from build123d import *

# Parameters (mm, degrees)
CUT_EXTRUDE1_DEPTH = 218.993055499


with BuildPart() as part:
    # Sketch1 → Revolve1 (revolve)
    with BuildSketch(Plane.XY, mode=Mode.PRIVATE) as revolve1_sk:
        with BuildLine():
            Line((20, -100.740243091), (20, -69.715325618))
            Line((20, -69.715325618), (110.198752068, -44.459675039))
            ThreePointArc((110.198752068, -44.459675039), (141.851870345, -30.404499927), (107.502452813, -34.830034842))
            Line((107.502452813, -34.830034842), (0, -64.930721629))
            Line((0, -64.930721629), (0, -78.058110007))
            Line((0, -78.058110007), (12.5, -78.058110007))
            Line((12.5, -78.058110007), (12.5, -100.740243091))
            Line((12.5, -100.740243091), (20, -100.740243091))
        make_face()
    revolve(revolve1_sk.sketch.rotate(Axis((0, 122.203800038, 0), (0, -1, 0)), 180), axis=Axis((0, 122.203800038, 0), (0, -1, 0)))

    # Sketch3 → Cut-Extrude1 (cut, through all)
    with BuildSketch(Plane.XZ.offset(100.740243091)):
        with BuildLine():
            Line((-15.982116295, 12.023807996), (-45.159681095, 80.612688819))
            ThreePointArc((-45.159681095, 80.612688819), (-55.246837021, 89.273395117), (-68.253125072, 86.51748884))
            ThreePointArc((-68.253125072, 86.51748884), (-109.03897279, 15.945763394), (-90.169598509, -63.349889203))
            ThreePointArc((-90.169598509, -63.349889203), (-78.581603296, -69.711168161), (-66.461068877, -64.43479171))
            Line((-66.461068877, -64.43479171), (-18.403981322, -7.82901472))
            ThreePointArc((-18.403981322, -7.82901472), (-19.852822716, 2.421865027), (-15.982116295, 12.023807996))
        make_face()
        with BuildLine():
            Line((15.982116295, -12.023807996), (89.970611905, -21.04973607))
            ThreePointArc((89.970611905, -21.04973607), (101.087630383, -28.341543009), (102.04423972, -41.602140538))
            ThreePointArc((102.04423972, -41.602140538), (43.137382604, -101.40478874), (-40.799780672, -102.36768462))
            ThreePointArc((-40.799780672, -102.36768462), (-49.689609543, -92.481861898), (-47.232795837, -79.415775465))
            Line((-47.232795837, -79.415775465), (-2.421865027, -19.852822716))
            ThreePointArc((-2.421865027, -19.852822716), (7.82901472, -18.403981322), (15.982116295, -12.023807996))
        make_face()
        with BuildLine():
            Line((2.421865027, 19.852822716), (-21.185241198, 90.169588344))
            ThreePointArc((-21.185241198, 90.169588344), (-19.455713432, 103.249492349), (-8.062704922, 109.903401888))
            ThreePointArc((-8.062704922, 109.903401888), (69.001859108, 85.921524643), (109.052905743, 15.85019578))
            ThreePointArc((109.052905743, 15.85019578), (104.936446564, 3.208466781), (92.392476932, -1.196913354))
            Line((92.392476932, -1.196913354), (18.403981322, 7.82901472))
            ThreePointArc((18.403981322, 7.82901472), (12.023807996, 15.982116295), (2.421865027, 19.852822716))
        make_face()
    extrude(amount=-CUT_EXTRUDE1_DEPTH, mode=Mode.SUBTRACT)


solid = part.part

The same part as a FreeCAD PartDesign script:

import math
import FreeCAD as App
import Part
import Sketcher
from FreeCAD import Vector

doc = App.newDocument("Part")
body = doc.addObject("PartDesign::Body", "Body")

sketch1 = body.newObject("Sketcher::SketchObject", "Sketch")
sketch1.AttachmentSupport = (doc.getObject("XY_Plane"), [""])
sketch1.MapMode = "FlatFace"
sketch1.addGeometry([
    Part.LineSegment(Vector(20, -100.740243, 0), Vector(20, -69.715326, 0)),
    Part.LineSegment(Vector(20, -69.715326, 0), Vector(110.198752, -44.459675, 0)),
    Part.ArcOfCircle(Part.Circle(Vector(125, -35.123024, 0), Vector(0, 0, 1), 17.5), math.radians(-147.756204), math.radians(179.040697)),
    Part.LineSegment(Vector(107.502453, -34.830035, 0), Vector(0, -64.930722, 0)),
    Part.LineSegment(Vector(0, -64.930722, 0), Vector(0, -78.05811, 0)),
    Part.LineSegment(Vector(0, -78.05811, 0), Vector(12.5, -78.05811, 0)),
    Part.LineSegment(Vector(12.5, -78.05811, 0), Vector(12.5, -100.740243, 0)),
    Part.LineSegment(Vector(12.5, -100.740243, 0), Vector(20, -100.740243, 0)),
], False)
sketch1.addConstraint([
    Sketcher.Constraint("Coincident", 0, 2, 1, 1),
    Sketcher.Constraint("Coincident", 1, 2, 2, 1),
    Sketcher.Constraint("Coincident", 2, 2, 3, 1),
    Sketcher.Constraint("Coincident", 3, 2, 4, 1),
    Sketcher.Constraint("Coincident", 4, 2, 5, 1),
    Sketcher.Constraint("Coincident", 5, 2, 6, 1),
    Sketcher.Constraint("Coincident", 6, 2, 7, 1),
    Sketcher.Constraint("Coincident", 7, 2, 0, 1),
    Sketcher.Constraint("Vertical", 0),
    Sketcher.Constraint("Vertical", 4),
    Sketcher.Constraint("Horizontal", 5),
    Sketcher.Constraint("Vertical", 6),
    Sketcher.Constraint("Horizontal", 7),
    Sketcher.Constraint("PointOnObject", 3, 2, -2),
    Sketcher.Constraint("Parallel", 1, 3),
    Sketcher.Constraint("Radius", 2, 17.5),
    Sketcher.Constraint("DistanceX", 5, 1, 5, 2, 12.5),
    Sketcher.Constraint("DistanceX", 7, 1, 7, 2, 7.5),
    Sketcher.Constraint("DistanceX", -1, 1, 2, 3, 125.0),
    Sketcher.Constraint("DistanceY", 4, 2, 4, 1, 13.127388),
    Sketcher.Constraint("DistanceY", 0, 2, 2, 3, 34.592302),
    Sketcher.Constraint("DistanceX", 2, 2, 1, 2, 2.696299),
    Sketcher.Constraint("DistanceY", 3, 2, 2, 3, 29.807698),
    Sketcher.Constraint("DistanceY", 0, 1, 0, 2, 31.024917),
    Sketcher.Constraint("DistanceY", 3, 2, -1, 1, 64.930722),
])
revolution = body.newObject("PartDesign::Revolution", "Revolution")
revolution.Profile = sketch1
revolution.ReferenceAxis = (sketch1, ["V_Axis"])
revolution.Angle = 360

sketch2 = body.newObject("Sketcher::SketchObject", "Sketch001")
sketch2.AttachmentSupport = (doc.getObject("XZ_Plane"), [""])
sketch2.MapMode = "FlatFace"
sketch2.AttachmentOffset = App.Placement(Vector(0, 0, 100.740243), App.Rotation())
sketch2.addGeometry([
    Part.LineSegment(Vector(-15.982116, 12.023808, 0), Vector(-45.159681, 80.612689, 0)),
    Part.ArcOfCircle(Part.Circle(Vector(-58.962667, 74.740928, 0), Vector(0, 0, 1), 15), math.radians(23.044799), math.radians(128.269695)),
    Part.ArcOfCircle(Part.Circle(Vector(0, 0, 0), Vector(0, 0, 1), 110.198752), math.radians(128.269695), math.radians(215.090486)),
    Part.ArcOfCircle(Part.Circle(Vector(-77.895921, -54.726848, 0), Vector(0, 0, 1), 15), math.radians(-144.909514), math.radians(-40.330541)),
    Part.LineSegment(Vector(-66.461069, -64.434792, 0), Vector(-18.403981, -7.829015, 0)),
    Part.ArcOfCircle(Part.Circle(Vector(0, 0, 0), Vector(0, 0, 1), 20), math.radians(143.044799), math.radians(203.044799)),
    Part.LineSegment(Vector(89.970612, -21.049736, 0), Vector(15.982116, -12.023808, 0)),
    Part.ArcOfCircle(Part.Circle(Vector(0, 0, 0), Vector(0, 0, 1), 20), math.radians(-96.955201), math.radians(-36.955201)),
    Part.LineSegment(Vector(-2.421865, -19.852823, 0), Vector(-47.232796, -79.415775, 0)),
    Part.ArcOfCircle(Part.Circle(Vector(-35.246209, -88.433631, 0), Vector(0, 0, 1), 15), math.radians(143.044799), math.radians(248.269695)),
    Part.ArcOfCircle(Part.Circle(Vector(0, 0, 0), Vector(0, 0, 1), 110.198752), math.radians(-111.730305), math.radians(-22.180098)),
    Part.ArcOfCircle(Part.Circle(Vector(88.154213, -35.939353, 0), Vector(0, 0, 1), 15), math.radians(-22.180098), math.radians(83.044799)),
    Part.LineSegment(Vector(-21.185241, 90.169588, 0), Vector(2.421865, 19.852823, 0)),
    Part.ArcOfCircle(Part.Circle(Vector(0, 0, 0), Vector(0, 0, 1), 20), math.radians(23.044799), math.radians(83.044799)),
    Part.LineSegment(Vector(18.403981, 7.829015, 0), Vector(92.392477, -1.196913, 0)),
    Part.ArcOfCircle(Part.Circle(Vector(94.208876, 13.692704, 0), Vector(0, 0, 1), 15), math.radians(-96.955201), math.radians(8.269695)),
    Part.ArcOfCircle(Part.Circle(Vector(0, 0, 0), Vector(0, 0, 1), 110.198752), math.radians(8.269695), math.radians(94.195802)),
    Part.ArcOfCircle(Part.Circle(Vector(-6.965228, 94.943604, 0), Vector(0, 0, 1), 15), math.radians(94.195802), math.radians(198.558197)),
], False)
sketch2.addConstraint([
    Sketcher.Constraint("Tangent", 0, 2, 1, 1),
    Sketcher.Constraint("Tangent", 1, 2, 2, 1),
    Sketcher.Constraint("Tangent", 2, 2, 3, 1),
    Sketcher.Constraint("Tangent", 3, 2, 4, 1),
    Sketcher.Constraint("Coincident", 4, 2, 5, 2),
    Sketcher.Constraint("Coincident", 5, 1, 0, 1),
    Sketcher.Constraint("Coincident", 6, 2, 7, 2),
    Sketcher.Constraint("Coincident", 7, 1, 8, 1),
    Sketcher.Constraint("Tangent", 8, 2, 9, 1),
    Sketcher.Constraint("Tangent", 9, 2, 10, 1),
    Sketcher.Constraint("Tangent", 10, 2, 11, 1),
    Sketcher.Constraint("Tangent", 11, 2, 6, 1),
    Sketcher.Constraint("Coincident", 12, 2, 13, 2),
    Sketcher.Constraint("Coincident", 13, 1, 14, 1),
    Sketcher.Constraint("Tangent", 14, 2, 15, 1),
    Sketcher.Constraint("Tangent", 15, 2, 16, 1),
    Sketcher.Constraint("Tangent", 16, 2, 17, 1),
    Sketcher.Constraint("Tangent", 17, 2, 12, 1),
    Sketcher.Constraint("Coincident", 2, 3, -1, 1),
    Sketcher.Constraint("Coincident", 5, 3, -1, 1),
    Sketcher.Constraint("Coincident", 7, 3, -1, 1),
    Sketcher.Constraint("Coincident", 10, 3, -1, 1),
    Sketcher.Constraint("Coincident", 13, 3, -1, 1),
    Sketcher.Constraint("Coincident", 16, 3, -1, 1),
    Sketcher.Constraint("Equal", 1, 3),
    Sketcher.Constraint("Equal", 5, 7),
    Sketcher.Constraint("Equal", 3, 9),
    Sketcher.Constraint("Equal", 2, 10),
    Sketcher.Constraint("Equal", 9, 11),
    Sketcher.Constraint("Equal", 7, 13),
    Sketcher.Constraint("Equal", 11, 15),
    Sketcher.Constraint("Equal", 10, 16),
    Sketcher.Constraint("Equal", 15, 17),
    Sketcher.Constraint("Parallel", 6, 14),
    Sketcher.Constraint("Equal", 0, 6),
    Sketcher.Constraint("Equal", 6, 8),
    Sketcher.Constraint("Equal", 8, 14),
    Sketcher.Constraint("Radius", 1, 15.0),
    Sketcher.Constraint("Radius", 5, 20.0),
    Sketcher.Constraint("Radius", 2, 110.198752),
    Sketcher.Constraint("DistanceX", 2, 2, -1, 1, 90.169599),
    Sketcher.Constraint("DistanceY", -1, 1, 16, 2, 109.903402),
    Sketcher.Constraint("DistanceY", 0, 2, 1, 2, 5.9048),
    Sketcher.Constraint("DistanceX", 11, 3, 11, 2, 1.816399),
    Sketcher.Constraint("DistanceY", 0, 2, 17, 2, 9.5569),
    Sketcher.Constraint("DistanceX", 9, 3, -1, 1, 35.246209),
    Sketcher.Constraint("DistanceX", 0, 2, -1, 1, 45.159681),
    Sketcher.Constraint("DistanceX", 3, 2, -1, 1, 66.461069),
])
pocket1 = body.newObject("PartDesign::Pocket", "Pocket")
pocket1.Profile = sketch2
pocket1.Type = "ThroughAll"

doc.recompute()
